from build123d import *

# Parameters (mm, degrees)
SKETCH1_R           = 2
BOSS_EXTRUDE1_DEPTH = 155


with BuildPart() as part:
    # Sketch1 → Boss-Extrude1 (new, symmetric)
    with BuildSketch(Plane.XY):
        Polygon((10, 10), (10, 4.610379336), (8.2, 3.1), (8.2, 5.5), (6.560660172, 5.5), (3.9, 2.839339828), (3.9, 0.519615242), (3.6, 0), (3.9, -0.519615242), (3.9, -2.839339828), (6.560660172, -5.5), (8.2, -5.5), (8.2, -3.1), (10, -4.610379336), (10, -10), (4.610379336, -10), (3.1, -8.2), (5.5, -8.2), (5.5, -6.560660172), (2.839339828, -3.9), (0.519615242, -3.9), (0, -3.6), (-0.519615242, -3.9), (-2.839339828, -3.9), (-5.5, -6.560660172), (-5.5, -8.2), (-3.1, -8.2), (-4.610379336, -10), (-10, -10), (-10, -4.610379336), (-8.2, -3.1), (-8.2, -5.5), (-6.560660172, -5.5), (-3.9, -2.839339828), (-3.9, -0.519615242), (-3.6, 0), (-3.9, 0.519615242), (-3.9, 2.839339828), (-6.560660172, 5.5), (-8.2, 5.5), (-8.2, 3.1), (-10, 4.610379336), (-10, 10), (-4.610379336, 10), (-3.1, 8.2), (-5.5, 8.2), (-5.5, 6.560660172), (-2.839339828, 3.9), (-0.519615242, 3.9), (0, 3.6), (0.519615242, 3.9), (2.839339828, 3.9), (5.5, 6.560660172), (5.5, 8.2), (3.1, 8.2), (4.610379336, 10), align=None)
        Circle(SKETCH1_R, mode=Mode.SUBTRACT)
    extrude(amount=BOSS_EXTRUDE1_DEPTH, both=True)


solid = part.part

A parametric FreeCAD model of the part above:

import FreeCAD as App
import Part
import Sketcher
Q = App.Units.Quantity


def add_polygon(sketch, points):
    """Adds a closed chain of lines whose ends are joined by coincident constraints."""
    first, n = sketch.GeometryCount, len(points)
    for a, b in zip(points, points[1:] + points[:1]):
        sketch.addGeometry(Part.LineSegment(App.Vector(*a, 0), App.Vector(*b, 0)), False)
    for i in range(n):
        sketch.addConstraint(Sketcher.Constraint("Coincident", first + i, 2, first + (i + 1) % n, 1))

doc = App.newDocument("Part")
body = doc.addObject("PartDesign::Body", "Body")

# Sketch on XY plane
sketch1 = doc.addObject("Sketcher::SketchObject", "Sketch")
body.addObject(sketch1)
sketch1.AttachmentSupport = (doc.XY_Plane, [""])
sketch1.MapMode = "FlatFace"
add_polygon(sketch1, [(10, 4.6), (10, 10), (4.6, 10), (3.1, 8.2), (5.5, 8.2), (5.5, 6.6), (2.8, 3.9), (0.5, 3.9), (0, 3.6), (-0.5, 3.9), (-2.8, 3.9), (-5.5, 6.6), (-5.5, 8.2), (-3.1, 8.2), (-4.6, 10), (-10, 10), (-10, 4.6), (-8.2, 3.1), (-8.2, 5.5), (-6.6, 5.5), (-3.9, 2.8), (-3.9, 0.5), (-3.6, 0), (-3.9, -0.5), (-3.9, -2.8), (-6.6, -5.5), (-8.2, -5.5), (-8.2, -3.1), (-10, -4.6), (-10, -10), (-4.6, -10), (-3.1, -8.2), (-5.5, -8.2), (-5.5, -6.6), (-2.8, -3.9), (-0.5, -3.9), (0, -3.6), (0.5, -3.9), (2.8, -3.9), (5.5, -6.6), (5.5, -8.2), (3.1, -8.2), (4.6, -10), (10, -10), (10, -4.6), (8.2, -3.1), (8.2, -5.5), (6.6, -5.5), (3.9, -2.8), (3.9, -0.5), (3.6, 0), (3.9, 0.5), (3.9, 2.8), (6.6, 5.5), (8.2, 5.5), (8.2, 3.1)])  # lines 0-55
sketch1.addGeometry(Part.Circle(App.Vector(0, 0, 0), App.Vector(0, 0, 1), 2), False)  # 56
sketch1.addConstraint([
    Sketcher.Constraint("Vertical", 0),
    Sketcher.Constraint("Horizontal", 1),
    Sketcher.Constraint("Horizontal", 3),
    Sketcher.Constraint("Vertical", 4),
    Sketcher.Constraint("Horizontal", 6),
    Sketcher.Constraint("Horizontal", 9),
    Sketcher.Constraint("Vertical", 11),
    Sketcher.Constraint("Horizontal", 12),
    Sketcher.Constraint("Horizontal", 14),
    Sketcher.Constraint("Vertical", 15),
    Sketcher.Constraint("Vertical", 17),
    Sketcher.Constraint("Horizontal", 18),
    Sketcher.Constraint("Vertical", 20),
    Sketcher.Constraint("Vertical", 23),
    Sketcher.Constraint("Horizontal", 25),
    Sketcher.Constraint("Vertical", 26),
    Sketcher.Constraint("Vertical", 28),
    Sketcher.Constraint("Horizontal", 29),
    Sketcher.Constraint("Horizontal", 31),
    Sketcher.Constraint("Vertical", 32),
    Sketcher.Constraint("Horizontal", 34),
    Sketcher.Constraint("Horizontal", 37),
    Sketcher.Constraint("Vertical", 39),
    Sketcher.Constraint("Horizontal", 40),
    Sketcher.Constraint("Horizontal", 42),
    Sketcher.Constraint("Vertical", 43),
    Sketcher.Constraint("Vertical", 45),
    Sketcher.Constraint("Horizontal", 46),
    Sketcher.Constraint("Vertical", 48),
    Sketcher.Constraint("Vertical", 51),
    Sketcher.Constraint("Horizontal", 53),
    Sketcher.Constraint("Vertical", 54),
    Sketcher.Constraint("Coincident", 56, 3, -1, 1),
    Sketcher.Constraint("Symmetric", 0, 2, 28, 2, -1, 1),
    Sketcher.Constraint("Symmetric", 2, 2, 30, 2, -1, 1),
    Sketcher.Constraint("Symmetric", 4, 2, 32, 2, -1, 1),
    Sketcher.Constraint("Symmetric", 5, 2, 33, 2, -1, 1),
    Sketcher.Constraint("Symmetric", 7, 2, 35, 2, -1, 1),
    Sketcher.Constraint("Symmetric", 8, 2, 36, 2, -1, 1),
    Sketcher.Constraint("Symmetric", 10, 2, 38, 2, -1, 1),
    Sketcher.Constraint("Symmetric", 12, 2, 40, 2, -1, 1),
    Sketcher.Constraint("Symmetric", 13, 2, 41, 2, -1, 1),
    Sketcher.Constraint("Symmetric", 15, 2, 43, 2, -1, 1),
    Sketcher.Constraint("Symmetric", 16, 2, 44, 2, -1, 1),
    Sketcher.Constraint("Symmetric", 18, 2, 46, 2, -1, 1),
    Sketcher.Constraint("Symmetric", 19, 2, 47, 2, -1, 1),
    Sketcher.Constraint("Symmetric", 21, 2, 49, 2, -1, 1),
    Sketcher.Constraint("Symmetric", 22, 2, 50, 2, -1, 1),
    Sketcher.Constraint("Symmetric", 24, 2, 52, 2, -1, 1),
    Sketcher.Constraint("Symmetric", 26, 2, 54, 2, -1, 1),
    Sketcher.Constraint("Symmetric", 6, 2, 8, 2, -2),
    Sketcher.Constraint("Symmetric", 4, 2, 10, 2, -2),
    Sketcher.Constraint("Symmetric", 2, 2, 12, 2, -2),
    Sketcher.Constraint("Symmetric", 1, 2, 13, 2, -2),
    Sketcher.Constraint("Symmetric", 27, 2, 43, 2, -2),
    Sketcher.Constraint("Symmetric", 26, 2, 44, 2, -2),
    Sketcher.Constraint("Symmetric", 24, 2, 46, 2, -2),
    Sketcher.Constraint("Symmetric", 23, 2, 47, 2, -2),
    Sketcher.Constraint("PointOnObject", 7, 2, -2),
    Sketcher.Constraint("PointOnObject", 21, 2, -1),
    Sketcher.Constraint("Perpendicular", 5, 10),
    Sketcher.Constraint("Perpendicular", 2, 16),
    Sketcher.Constraint("Parallel", 10, 19),
    Sketcher.Constraint("Perpendicular", 7, 21),
    Sketcher.Constraint("Perpendicular", 8, 22),
    Sketcher.Constraint("Perpendicular", 19, 24),
    Sketcher.Constraint("Perpendicular", 16, 30),
    Sketcher.Constraint("Perpendicular", 21, 35),
    Sketcher.Constraint("Perpendicular", 33, 38),
    Sketcher.Constraint("Perpendicular", 35, 49),
    Sketcher.Constraint("Perpendicular", 47, 52),
    Sketcher.Constraint("Perpendicular", 41, 55),
    Sketcher.Constraint("Equal", 42, 0),
    Sketcher.Constraint("Equal", 53, 4),
    Sketcher.Constraint("Equal", 40, 17),
    Sketcher.Constraint("Equal", 37, 20),
    Sketcher.Constraint("Equal", 13, 16),
    Sketcher.Constraint("Equal", 10, 19),
    Sketcher.Constraint("Equal", 8, 21),
    Sketcher.Constraint("Diameter", 56, 4.0),
    Sketcher.Constraint("Angle", 2, Q("-130 deg")),
    Sketcher.Constraint("Angle", 7, Q("-150 deg")),
    Sketcher.Constraint("DistanceX", 3, 1, 3, 2, 2.4),
    Sketcher.Constraint("DistanceX", -1, 1, 0, 2, 10.0),
    Sketcher.Constraint("Distance", 7, 0.6),
    Sketcher.Constraint("DistanceX", -1, 1, 2, 2, 3.1),
    Sketcher.Constraint("DistanceY", -1, 1, 2, 2, 8.2),
    Sketcher.Constraint("DistanceY", -1, 1, 5, 2, 3.9),
    Sketcher.Constraint("DistanceX", 18, 1, 18, 2, 1.63934),
])
pad1 = doc.addObject("PartDesign::Pad", "Pad")
body.addObject(pad1)
pad1.Profile = sketch1
pad1.Length = 310
pad1.Midplane = True

doc.recompute()
